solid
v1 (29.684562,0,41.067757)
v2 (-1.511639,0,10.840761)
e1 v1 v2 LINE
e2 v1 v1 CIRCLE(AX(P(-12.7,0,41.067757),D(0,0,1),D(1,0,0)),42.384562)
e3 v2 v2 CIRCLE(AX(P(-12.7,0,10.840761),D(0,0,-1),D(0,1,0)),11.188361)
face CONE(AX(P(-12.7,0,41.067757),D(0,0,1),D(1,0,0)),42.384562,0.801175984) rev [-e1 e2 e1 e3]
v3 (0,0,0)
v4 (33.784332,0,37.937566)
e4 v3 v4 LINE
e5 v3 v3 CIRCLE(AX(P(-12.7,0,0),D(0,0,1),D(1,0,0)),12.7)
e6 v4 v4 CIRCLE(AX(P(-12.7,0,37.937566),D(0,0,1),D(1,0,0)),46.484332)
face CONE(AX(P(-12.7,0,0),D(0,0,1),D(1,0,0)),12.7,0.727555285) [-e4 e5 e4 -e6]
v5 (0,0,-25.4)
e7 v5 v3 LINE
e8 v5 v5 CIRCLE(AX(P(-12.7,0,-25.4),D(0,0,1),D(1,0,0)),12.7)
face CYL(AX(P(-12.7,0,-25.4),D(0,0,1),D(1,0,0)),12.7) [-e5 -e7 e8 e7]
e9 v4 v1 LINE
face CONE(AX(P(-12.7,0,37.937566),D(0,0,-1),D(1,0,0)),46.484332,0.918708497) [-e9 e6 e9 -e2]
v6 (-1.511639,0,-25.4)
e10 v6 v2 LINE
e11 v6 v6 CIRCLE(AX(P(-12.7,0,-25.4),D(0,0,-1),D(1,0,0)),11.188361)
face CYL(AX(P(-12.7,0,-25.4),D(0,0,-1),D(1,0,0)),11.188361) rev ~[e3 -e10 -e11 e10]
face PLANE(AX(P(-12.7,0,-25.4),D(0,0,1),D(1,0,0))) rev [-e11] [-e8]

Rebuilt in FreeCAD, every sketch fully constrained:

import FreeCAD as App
import Part
import Sketcher

V = App.Vector
Q = App.Units.Quantity


def add_polygon(sketch, points):
    """Adds a closed chain of lines whose ends are joined by coincident constraints."""
    first, n = sketch.GeometryCount, len(points)
    for a, b in zip(points, points[1:] + points[:1]):
        sketch.addGeometry(Part.LineSegment(App.Vector(*a, 0), App.Vector(*b, 0)), False)
    for i in range(n):
        sketch.addConstraint(Sketcher.Constraint("Coincident", first + i, 2, first + (i + 1) % n, 1))

doc = App.newDocument("Part")
body = doc.addObject("PartDesign::Body", "Body")

# Sketch on XZ plane
sketch1 = body.newObject("Sketcher::SketchObject", "Sketch")
sketch1.AttachmentSupport = (doc.getObject("XZ_Plane"), [""])
sketch1.MapMode = "FlatFace"
add_polygon(sketch1, [(0, 0), (33.784332, 37.937566), (29.684562, 41.067757), (-12.7, 0), (-12.7, -25.4), (0, -25.4)])  # lines 0-5
sketch1.addGeometry(Part.LineSegment(V(-12.7, -25.4, 0), V(-12.7, 41.067757, 0)), True)  # axis
sketch1.addConstraint([
    Sketcher.Constraint("Vertical", 3),
    Sketcher.Constraint("Horizontal", 4),
    Sketcher.Constraint("Vertical", 5),
    Sketcher.Constraint("Vertical", 6),
    Sketcher.Constraint("Coincident", 5, 2, -1, 1),
    Sketcher.Constraint("Coincident", 6, 1, 3, 2),
    Sketcher.Constraint("PointOnObject", 2, 2, -1),
    Sketcher.Constraint("Horizontal", 1, 2, 6, 2),
    Sketcher.Constraint("DistanceY", 3, 2, 3, 1, Q("1 in")),
    Sketcher.Constraint("Distance", 0, Q("2 in")),
    Sketcher.Constraint("DistanceX", 4, 1, 4, 2, Q("0.5 in")),
    Sketcher.Constraint("Distance", 1, Q("5.158121 mm")),
    Sketcher.Constraint("DistanceY", 6, 1, 6, 2, Q("66.467757 mm")),
    Sketcher.Constraint("DistanceX", -1, 1, 1, 2, Q("29.684562 mm")),
])
revolution = body.newObject("PartDesign::Revolution", "Revolution")
revolution.Profile = sketch1
revolution.ReferenceAxis = (sketch1, ["Axis0"])
revolution.Angle = 360

# Sketch on XY plane
sketch2 = body.newObject("Sketcher::SketchObject", "Sketch001")
sketch2.AttachmentSupport = (doc.getObject("XY_Plane"), [""])
sketch2.MapMode = "FlatFace"
sketch2.AttachmentOffset = App.Placement(V(0, 0, -1 * 25.4), App.Rotation())
sketch2.addGeometry(Part.Circle(V(-12.7, 0, 0), V(0, 0, 1), 11.188361), False)
sketch2.addConstraint([
    Sketcher.Constraint("PointOnObject", 0, 3, -1),
    Sketcher.Constraint("DistanceX", 0, 3, -1, 1, Q("0.5 in")),
    Sketcher.Constraint("Diameter", 0, Q("22.376722 mm")),
])
pocket1 = body.newObject("PartDesign::Pocket", "Pocket")
pocket1.Profile = sketch2
pocket1.Length = Q("3 in")
pocket1.Reversed = True

doc.recompute()
